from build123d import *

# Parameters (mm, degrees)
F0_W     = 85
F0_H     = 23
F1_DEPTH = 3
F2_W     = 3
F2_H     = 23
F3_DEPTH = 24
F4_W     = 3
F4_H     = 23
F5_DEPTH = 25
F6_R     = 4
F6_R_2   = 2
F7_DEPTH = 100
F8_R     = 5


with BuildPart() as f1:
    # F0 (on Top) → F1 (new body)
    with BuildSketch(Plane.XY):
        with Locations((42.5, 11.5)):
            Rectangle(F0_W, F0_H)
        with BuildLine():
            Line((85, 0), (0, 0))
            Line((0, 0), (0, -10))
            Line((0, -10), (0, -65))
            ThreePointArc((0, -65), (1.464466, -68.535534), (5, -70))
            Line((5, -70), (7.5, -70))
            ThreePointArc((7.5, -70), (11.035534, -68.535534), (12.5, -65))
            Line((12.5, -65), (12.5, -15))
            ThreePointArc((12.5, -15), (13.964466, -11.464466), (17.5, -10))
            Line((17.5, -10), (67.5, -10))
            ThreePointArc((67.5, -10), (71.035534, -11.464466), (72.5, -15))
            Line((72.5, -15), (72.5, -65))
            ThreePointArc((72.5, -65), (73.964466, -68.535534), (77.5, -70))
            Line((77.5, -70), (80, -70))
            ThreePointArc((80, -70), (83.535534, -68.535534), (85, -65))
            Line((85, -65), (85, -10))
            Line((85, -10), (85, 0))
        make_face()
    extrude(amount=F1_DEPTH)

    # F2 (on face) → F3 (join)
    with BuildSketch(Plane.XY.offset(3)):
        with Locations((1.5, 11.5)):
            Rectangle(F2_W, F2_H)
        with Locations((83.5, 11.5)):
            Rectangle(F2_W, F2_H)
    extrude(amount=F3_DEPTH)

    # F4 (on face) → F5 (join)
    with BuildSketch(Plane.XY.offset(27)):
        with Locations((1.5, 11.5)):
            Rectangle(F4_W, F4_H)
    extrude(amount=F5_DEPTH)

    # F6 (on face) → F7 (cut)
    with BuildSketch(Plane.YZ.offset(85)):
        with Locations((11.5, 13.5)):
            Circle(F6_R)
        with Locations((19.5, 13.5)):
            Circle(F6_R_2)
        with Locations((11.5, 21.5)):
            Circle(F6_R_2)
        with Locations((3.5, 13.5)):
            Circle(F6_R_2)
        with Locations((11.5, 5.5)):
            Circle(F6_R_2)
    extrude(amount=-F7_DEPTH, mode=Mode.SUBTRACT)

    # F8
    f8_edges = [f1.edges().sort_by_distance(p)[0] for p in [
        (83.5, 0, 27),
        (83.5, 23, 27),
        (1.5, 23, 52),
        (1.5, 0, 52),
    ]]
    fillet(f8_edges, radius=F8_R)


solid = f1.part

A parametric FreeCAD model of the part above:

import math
import FreeCAD as App
import Part
import Sketcher

V = App.Vector
Q = App.Units.Quantity


def edges_at(feature, points):
    """Names of the edges that pass closest to the given points."""
    edges = feature.Shape.Edges
    near = lambda p: min(range(len(edges)), key=lambda i: edges[i].distToShape(Part.Vertex(*p))[0])
    return sorted({f"Edge{near(p) + 1}" for p in points})


def add_polygon(sketch, points):
    """Adds a closed chain of lines whose ends are joined by coincident constraints."""
    first, n = sketch.GeometryCount, len(points)
    for a, b in zip(points, points[1:] + points[:1]):
        sketch.addGeometry(Part.LineSegment(App.Vector(*a, 0), App.Vector(*b, 0)), False)
    for i in range(n):
        sketch.addConstraint(Sketcher.Constraint("Coincident", first + i, 2, first + (i + 1) % n, 1))

doc = App.newDocument("Part")
body = doc.addObject("PartDesign::Body", "Body")

sketch1 = body.newObject("Sketcher::SketchObject", "Sketch")
sketch1.AttachmentSupport = (doc.getObject("XY_Plane"), [""])
sketch1.MapMode = "FlatFace"
sketch1.addGeometry([
    Part.LineSegment(V(0, 23, 0), V(0, -65, 0)),
    Part.ArcOfCircle(Part.Circle(V(5, -65, 0), V(0, 0, 1), 5), math.radians(179.999996), math.radians(270.000004)),
    Part.LineSegment(V(5, -70, 0), V(7.5, -70, 0)),
    Part.ArcOfCircle(Part.Circle(V(7.5, -65, 0), V(0, 0, 1), 5), math.radians(-90.000004), math.radians(0.000004)),
    Part.LineSegment(V(12.5, -65, 0), V(12.5, -15, 0)),
    Part.ArcOfCircle(Part.Circle(V(17.5, -15, 0), V(0, 0, 1), 5), math.radians(89.999996), math.radians(180.000004)),
    Part.LineSegment(V(17.5, -10, 0), V(67.5, -10, 0)),
    Part.ArcOfCircle(Part.Circle(V(67.5, -15, 0), V(0, 0, 1), 5), math.radians(-0.000004), math.radians(90.000004)),
    Part.LineSegment(V(72.5, -15, 0), V(72.5, -65, 0)),
    Part.ArcOfCircle(Part.Circle(V(77.5, -65, 0), V(0, 0, 1), 5), math.radians(179.999996), math.radians(270.000004)),
    Part.LineSegment(V(77.5, -70, 0), V(80, -70, 0)),
    Part.ArcOfCircle(Part.Circle(V(80, -65, 0), V(0, 0, 1), 5), math.radians(-90.000004), math.radians(0.000004)),
    Part.LineSegment(V(85, -65, 0), V(85, 23, 0)),
    Part.LineSegment(V(85, 23, 0), V(0, 23, 0)),
], False)
sketch1.addConstraint([
    Sketcher.Constraint("Tangent", 0, 2, 1, 1),
    Sketcher.Constraint("Tangent", 1, 2, 2, 1),
    Sketcher.Constraint("Tangent", 2, 2, 3, 1),
    Sketcher.Constraint("Tangent", 3, 2, 4, 1),
    Sketcher.Constraint("Tangent", 4, 2, 5, 2),
    Sketcher.Constraint("Tangent", 5, 1, 6, 1),
    Sketcher.Constraint("Tangent", 6, 2, 7, 2),
    Sketcher.Constraint("Tangent", 7, 1, 8, 1),
    Sketcher.Constraint("Tangent", 8, 2, 9, 1),
    Sketcher.Constraint("Tangent", 9, 2, 10, 1),
    Sketcher.Constraint("Tangent", 10, 2, 11, 1),
    Sketcher.Constraint("Tangent", 11, 2, 12, 1),
    Sketcher.Constraint("Coincident", 12, 2, 13, 1),
    Sketcher.Constraint("Coincident", 13, 2, 0, 1),
    Sketcher.Constraint("Vertical", 0),
    Sketcher.Constraint("Horizontal", 2),
    Sketcher.Constraint("Vertical", 4),
    Sketcher.Constraint("Horizontal", 6),
    Sketcher.Constraint("Vertical", 8),
    Sketcher.Constraint("Horizontal", 10),
    Sketcher.Constraint("Vertical", 12),
    Sketcher.Constraint("Horizontal", 13),
    Sketcher.Constraint("Equal", 1, 3),
    Sketcher.Constraint("Equal", 3, 5),
    Sketcher.Constraint("Equal", 5, 7),
    Sketcher.Constraint("Equal", 7, 9),
    Sketcher.Constraint("Equal", 9, 11),
    Sketcher.Constraint("PointOnObject", 0, 2, -2),
    Sketcher.Constraint("Horizontal", 3, 3, 9, 3),
    Sketcher.Constraint("Equal", 2, 10),
    Sketcher.Constraint("Equal", 6, 4),
    Sketcher.Constraint("Radius", 1, Q("5 mm")),
    Sketcher.Constraint("DistanceX", 6, 1, 6, 2, Q("50 mm")),
    Sketcher.Constraint("DistanceX", 13, 2, 13, 1, Q("85 mm")),
    Sketcher.Constraint("DistanceY", 0, 2, 0, 1, Q("88 mm")),
    Sketcher.Constraint("DistanceY", 1, 3, -1, 1, Q("65 mm")),
])
pad1 = body.newObject("PartDesign::Pad", "Pad")
pad1.Profile = sketch1
pad1.Length = 3

sketch2 = body.newObject("Sketcher::SketchObject", "Sketch001")
sketch2.AttachmentSupport = (doc.getObject("XY_Plane"), [""])
sketch2.MapMode = "FlatFace"
sketch2.AttachmentOffset = App.Placement(V(0, 0, 3), App.Rotation())
add_polygon(sketch2, [(0, 23), (0, 0), (3, 0), (3, 23)])
add_polygon(sketch2, [(82, 23), (82, 0), (85, 0), (85, 23)])
sketch2.addConstraint([
    Sketcher.Constraint("Vertical", 0),
    Sketcher.Constraint("Horizontal", 1),
    Sketcher.Constraint("Vertical", 2),
    Sketcher.Constraint("Horizontal", 3),
    Sketcher.Constraint("Vertical", 4),
    Sketcher.Constraint("Horizontal", 5),
    Sketcher.Constraint("Vertical", 6),
    Sketcher.Constraint("Horizontal", 7),
    Sketcher.Constraint("Coincident", 0, 2, -1, 1),
    Sketcher.Constraint("PointOnObject", 4, 2, -1),
    Sketcher.Constraint("Horizontal", 3, 2, 6, 2),
    Sketcher.Constraint("Equal", 3, 5),
    Sketcher.Constraint("DistanceX", 1, 1, 1, 2, Q("3 mm")),
    Sketcher.Constraint("DistanceY", 0, 2, 0, 1, Q("23 mm")),
    Sketcher.Constraint("DistanceX", -1, 1, 4, 2, Q("82 mm")),
])
pad2 = body.newObject("PartDesign::Pad", "Pad001")
pad2.Profile = sketch2
pad2.Length = 24

sketch3 = body.newObject("Sketcher::SketchObject", "Sketch002")
sketch3.AttachmentSupport = (doc.getObject("XY_Plane"), [""])
sketch3.MapMode = "FlatFace"
sketch3.AttachmentOffset = App.Placement(V(0, 0, 27), App.Rotation())
add_polygon(sketch3, [(0, 23), (0, 0), (3, 0), (3, 23)])
sketch3.addConstraint([
    Sketcher.Constraint("Vertical", 0),
    Sketcher.Constraint("Horizontal", 1),
    Sketcher.Constraint("Vertical", 2),
    Sketcher.Constraint("Horizontal", 3),
    Sketcher.Constraint("Coincident", 0, 2, -1, 1),
    Sketcher.Constraint("DistanceX", 1, 1, 1, 2, Q("3 mm")),
    Sketcher.Constraint("DistanceY", 0, 2, 0, 1, Q("23 mm")),
])
pad3 = body.newObject("PartDesign::Pad", "Pad002")
pad3.Profile = sketch3
pad3.Length = 25

sketch4 = body.newObject("Sketcher::SketchObject", "Sketch003")
sketch4.AttachmentSupport = (doc.getObject("YZ_Plane"), [""])
sketch4.MapMode = "FlatFace"
sketch4.AttachmentOffset = App.Placement(V(0, 0, 85), App.Rotation())
sketch4.addGeometry([
    Part.Circle(V(11.5, 13.5, 0), V(0, 0, 1), 4),
    Part.Circle(V(19.5, 13.5, 0), V(0, 0, 1), 2),
    Part.Circle(V(11.5, 21.5, 0), V(0, 0, 1), 2),
    Part.Circle(V(3.5, 13.5, 0), V(0, 0, 1), 2),
    Part.Circle(V(11.5, 5.5, 0), V(0, 0, 1), 2),
], False)
sketch4.addConstraint([
    Sketcher.Constraint("Equal", 1, 2),
    Sketcher.Constraint("Equal", 2, 3),
    Sketcher.Constraint("Equal", 3, 4),
    Sketcher.Constraint("Horizontal", 0, 3, 1, 3),
    Sketcher.Constraint("Horizontal", 1, 3, 3, 3),
    Sketcher.Constraint("Vertical", 0, 3, 2, 3),
    Sketcher.Constraint("Vertical", 2, 3, 4, 3),
    Sketcher.Constraint("Diameter", 0, Q("8 mm")),
    Sketcher.Constraint("Diameter", 1, Q("4 mm")),
    Sketcher.Constraint("DistanceX", 0, 3, 1, 3, Q("8 mm")),
    Sketcher.Constraint("DistanceY", 0, 3, 2, 3, Q("8 mm")),
    Sketcher.Constraint("DistanceX", 3, 3, 0, 3, Q("8 mm")),
    Sketcher.Constraint("DistanceY", 4, 3, 0, 3, Q("8 mm")),
    Sketcher.Constraint("DistanceX", -1, 1, 0, 3, Q("11.5 mm")),
    Sketcher.Constraint("DistanceY", -1, 1, 0, 3, Q("13.5 mm")),
])
pocket1 = body.newObject("PartDesign::Pocket", "Pocket")
pocket1.Profile = sketch4
pocket1.Length = 100
doc.recompute()

fillet = body.newObject("PartDesign::Fillet", "Fillet")
fillet.Base = (pocket1, edges_at(pocket1, [
    (83.5, 0, 27),
    (83.5, 23, 27),
    (1.5, 23, 52),
    (1.5, 0, 52),
]))
fillet.Radius = 5

doc.recompute()
